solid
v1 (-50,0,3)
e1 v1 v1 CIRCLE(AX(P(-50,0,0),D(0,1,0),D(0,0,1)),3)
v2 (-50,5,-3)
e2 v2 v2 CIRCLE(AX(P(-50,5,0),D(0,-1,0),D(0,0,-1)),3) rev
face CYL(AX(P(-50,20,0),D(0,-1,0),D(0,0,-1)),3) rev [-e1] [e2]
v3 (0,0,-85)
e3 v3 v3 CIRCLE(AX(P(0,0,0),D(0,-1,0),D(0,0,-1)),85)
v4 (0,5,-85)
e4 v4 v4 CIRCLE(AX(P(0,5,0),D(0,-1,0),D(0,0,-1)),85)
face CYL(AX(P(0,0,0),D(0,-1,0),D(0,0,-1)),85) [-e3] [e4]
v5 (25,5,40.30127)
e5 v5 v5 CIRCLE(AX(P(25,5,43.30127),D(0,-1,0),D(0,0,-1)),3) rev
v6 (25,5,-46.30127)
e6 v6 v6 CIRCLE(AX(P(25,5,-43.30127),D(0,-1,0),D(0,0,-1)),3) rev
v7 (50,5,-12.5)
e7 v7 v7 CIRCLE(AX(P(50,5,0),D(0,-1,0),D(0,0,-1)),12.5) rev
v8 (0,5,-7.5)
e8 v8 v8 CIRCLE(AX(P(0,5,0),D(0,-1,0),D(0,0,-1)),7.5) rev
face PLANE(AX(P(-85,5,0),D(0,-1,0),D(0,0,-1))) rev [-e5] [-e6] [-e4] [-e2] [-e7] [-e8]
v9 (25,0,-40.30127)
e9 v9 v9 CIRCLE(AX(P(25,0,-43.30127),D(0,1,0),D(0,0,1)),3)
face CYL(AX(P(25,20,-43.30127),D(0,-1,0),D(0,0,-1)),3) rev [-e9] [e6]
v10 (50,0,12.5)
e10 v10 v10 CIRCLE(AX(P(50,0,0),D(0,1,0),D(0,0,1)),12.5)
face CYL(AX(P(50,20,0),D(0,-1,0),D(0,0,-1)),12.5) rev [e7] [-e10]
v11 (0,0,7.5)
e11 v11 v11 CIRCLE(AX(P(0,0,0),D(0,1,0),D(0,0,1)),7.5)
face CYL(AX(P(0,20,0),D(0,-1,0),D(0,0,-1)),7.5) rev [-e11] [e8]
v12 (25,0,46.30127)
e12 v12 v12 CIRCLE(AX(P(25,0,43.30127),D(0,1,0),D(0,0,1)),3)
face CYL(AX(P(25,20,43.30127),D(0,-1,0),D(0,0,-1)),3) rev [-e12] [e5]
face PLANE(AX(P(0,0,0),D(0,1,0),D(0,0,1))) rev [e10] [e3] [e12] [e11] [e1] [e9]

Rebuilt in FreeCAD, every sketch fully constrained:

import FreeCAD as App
import Part
import Sketcher

V = App.Vector

doc = App.newDocument("Part")
body = doc.addObject("PartDesign::Body", "Body")

# Sketch on XY plane
sketch1 = body.newObject("Sketcher::SketchObject", "Sketch")
sketch1.AttachmentSupport = (doc.getObject("XY_Plane"), [""])
sketch1.MapMode = "FlatFace"
sketch1.addGeometry([
    Part.LineSegment(V(-85, 5, 0), V(-85, 0, 0)),
    Part.LineSegment(V(-85, 0, 0), V(0, 0, 0)),
    Part.LineSegment(V(0, 0, 0), V(0, 5, 0)),
    Part.LineSegment(V(0, 5, 0), V(-85, 5, 0)),
], False)
sketch1.addConstraint([
    Sketcher.Constraint("Coincident", 0, 2, 1, 1),
    Sketcher.Constraint("Coincident", 1, 2, 2, 1),
    Sketcher.Constraint("Coincident", 2, 2, 3, 1),
    Sketcher.Constraint("Coincident", 3, 2, 0, 1),
    Sketcher.Constraint("Vertical", 0),
    Sketcher.Constraint("Horizontal", 1),
    Sketcher.Constraint("Vertical", 2),
    Sketcher.Constraint("Horizontal", 3),
    Sketcher.Constraint("Coincident", 1, 2, -1, 1),
    Sketcher.Constraint("DistanceX", 1, 1, 1, 2, 85.0),
    Sketcher.Constraint("DistanceY", 0, 2, 0, 1, 5.0),
])
revolution = body.newObject("PartDesign::Revolution", "Revolution")
revolution.Profile = sketch1
revolution.ReferenceAxis = (sketch1, ["V_Axis"])
revolution.Angle = 360

# Sketch on XZ plane
sketch2 = body.newObject("Sketcher::SketchObject", "Sketch001")
sketch2.AttachmentSupport = (doc.getObject("XZ_Plane"), [""])
sketch2.MapMode = "FlatFace"
sketch2.addGeometry([
    Part.Circle(V(50, 0, 0), V(0, 0, 1), 12.5),  # 0
    Part.Circle(V(0, 0, 0), V(0, 0, 1), 7.5),  # 1
    Part.Circle(V(-50, 0, 0), V(0, 0, 1), 3),  # 2
    Part.Circle(V(25, -43.30127, 0), V(0, 0, 1), 3),  # 3
    Part.Circle(V(25, 43.30127, 0), V(0, 0, 1), 3),  # 4
], False)
sketch2.addConstraint([
    Sketcher.Constraint("Coincident", 1, 3, -1, 1),
    Sketcher.Constraint("Equal", 2, 3),
    Sketcher.Constraint("Equal", 3, 4),
    Sketcher.Constraint("Symmetric", 0, 3, 2, 3, -1, 1),
    Sketcher.Constraint("Symmetric", 3, 3, 4, 3, -1),
    Sketcher.Constraint("PointOnObject", 0, 3, -1),
    Sketcher.Constraint("Diameter", 0, 25.0),
    Sketcher.Constraint("Diameter", 1, 15.0),
    Sketcher.Constraint("Diameter", 2, 6.0),
    Sketcher.Constraint("DistanceX", -1, 1, 0, 3, 50.0),
    Sketcher.Constraint("DistanceX", -1, 1, 3, 3, 25.0),
    Sketcher.Constraint("DistanceY", 3, 3, -1, 1, 43.30127),
])
pocket1 = body.newObject("PartDesign::Pocket", "Pocket")
pocket1.Profile = sketch2
pocket1.Length = 20

doc.recompute()
